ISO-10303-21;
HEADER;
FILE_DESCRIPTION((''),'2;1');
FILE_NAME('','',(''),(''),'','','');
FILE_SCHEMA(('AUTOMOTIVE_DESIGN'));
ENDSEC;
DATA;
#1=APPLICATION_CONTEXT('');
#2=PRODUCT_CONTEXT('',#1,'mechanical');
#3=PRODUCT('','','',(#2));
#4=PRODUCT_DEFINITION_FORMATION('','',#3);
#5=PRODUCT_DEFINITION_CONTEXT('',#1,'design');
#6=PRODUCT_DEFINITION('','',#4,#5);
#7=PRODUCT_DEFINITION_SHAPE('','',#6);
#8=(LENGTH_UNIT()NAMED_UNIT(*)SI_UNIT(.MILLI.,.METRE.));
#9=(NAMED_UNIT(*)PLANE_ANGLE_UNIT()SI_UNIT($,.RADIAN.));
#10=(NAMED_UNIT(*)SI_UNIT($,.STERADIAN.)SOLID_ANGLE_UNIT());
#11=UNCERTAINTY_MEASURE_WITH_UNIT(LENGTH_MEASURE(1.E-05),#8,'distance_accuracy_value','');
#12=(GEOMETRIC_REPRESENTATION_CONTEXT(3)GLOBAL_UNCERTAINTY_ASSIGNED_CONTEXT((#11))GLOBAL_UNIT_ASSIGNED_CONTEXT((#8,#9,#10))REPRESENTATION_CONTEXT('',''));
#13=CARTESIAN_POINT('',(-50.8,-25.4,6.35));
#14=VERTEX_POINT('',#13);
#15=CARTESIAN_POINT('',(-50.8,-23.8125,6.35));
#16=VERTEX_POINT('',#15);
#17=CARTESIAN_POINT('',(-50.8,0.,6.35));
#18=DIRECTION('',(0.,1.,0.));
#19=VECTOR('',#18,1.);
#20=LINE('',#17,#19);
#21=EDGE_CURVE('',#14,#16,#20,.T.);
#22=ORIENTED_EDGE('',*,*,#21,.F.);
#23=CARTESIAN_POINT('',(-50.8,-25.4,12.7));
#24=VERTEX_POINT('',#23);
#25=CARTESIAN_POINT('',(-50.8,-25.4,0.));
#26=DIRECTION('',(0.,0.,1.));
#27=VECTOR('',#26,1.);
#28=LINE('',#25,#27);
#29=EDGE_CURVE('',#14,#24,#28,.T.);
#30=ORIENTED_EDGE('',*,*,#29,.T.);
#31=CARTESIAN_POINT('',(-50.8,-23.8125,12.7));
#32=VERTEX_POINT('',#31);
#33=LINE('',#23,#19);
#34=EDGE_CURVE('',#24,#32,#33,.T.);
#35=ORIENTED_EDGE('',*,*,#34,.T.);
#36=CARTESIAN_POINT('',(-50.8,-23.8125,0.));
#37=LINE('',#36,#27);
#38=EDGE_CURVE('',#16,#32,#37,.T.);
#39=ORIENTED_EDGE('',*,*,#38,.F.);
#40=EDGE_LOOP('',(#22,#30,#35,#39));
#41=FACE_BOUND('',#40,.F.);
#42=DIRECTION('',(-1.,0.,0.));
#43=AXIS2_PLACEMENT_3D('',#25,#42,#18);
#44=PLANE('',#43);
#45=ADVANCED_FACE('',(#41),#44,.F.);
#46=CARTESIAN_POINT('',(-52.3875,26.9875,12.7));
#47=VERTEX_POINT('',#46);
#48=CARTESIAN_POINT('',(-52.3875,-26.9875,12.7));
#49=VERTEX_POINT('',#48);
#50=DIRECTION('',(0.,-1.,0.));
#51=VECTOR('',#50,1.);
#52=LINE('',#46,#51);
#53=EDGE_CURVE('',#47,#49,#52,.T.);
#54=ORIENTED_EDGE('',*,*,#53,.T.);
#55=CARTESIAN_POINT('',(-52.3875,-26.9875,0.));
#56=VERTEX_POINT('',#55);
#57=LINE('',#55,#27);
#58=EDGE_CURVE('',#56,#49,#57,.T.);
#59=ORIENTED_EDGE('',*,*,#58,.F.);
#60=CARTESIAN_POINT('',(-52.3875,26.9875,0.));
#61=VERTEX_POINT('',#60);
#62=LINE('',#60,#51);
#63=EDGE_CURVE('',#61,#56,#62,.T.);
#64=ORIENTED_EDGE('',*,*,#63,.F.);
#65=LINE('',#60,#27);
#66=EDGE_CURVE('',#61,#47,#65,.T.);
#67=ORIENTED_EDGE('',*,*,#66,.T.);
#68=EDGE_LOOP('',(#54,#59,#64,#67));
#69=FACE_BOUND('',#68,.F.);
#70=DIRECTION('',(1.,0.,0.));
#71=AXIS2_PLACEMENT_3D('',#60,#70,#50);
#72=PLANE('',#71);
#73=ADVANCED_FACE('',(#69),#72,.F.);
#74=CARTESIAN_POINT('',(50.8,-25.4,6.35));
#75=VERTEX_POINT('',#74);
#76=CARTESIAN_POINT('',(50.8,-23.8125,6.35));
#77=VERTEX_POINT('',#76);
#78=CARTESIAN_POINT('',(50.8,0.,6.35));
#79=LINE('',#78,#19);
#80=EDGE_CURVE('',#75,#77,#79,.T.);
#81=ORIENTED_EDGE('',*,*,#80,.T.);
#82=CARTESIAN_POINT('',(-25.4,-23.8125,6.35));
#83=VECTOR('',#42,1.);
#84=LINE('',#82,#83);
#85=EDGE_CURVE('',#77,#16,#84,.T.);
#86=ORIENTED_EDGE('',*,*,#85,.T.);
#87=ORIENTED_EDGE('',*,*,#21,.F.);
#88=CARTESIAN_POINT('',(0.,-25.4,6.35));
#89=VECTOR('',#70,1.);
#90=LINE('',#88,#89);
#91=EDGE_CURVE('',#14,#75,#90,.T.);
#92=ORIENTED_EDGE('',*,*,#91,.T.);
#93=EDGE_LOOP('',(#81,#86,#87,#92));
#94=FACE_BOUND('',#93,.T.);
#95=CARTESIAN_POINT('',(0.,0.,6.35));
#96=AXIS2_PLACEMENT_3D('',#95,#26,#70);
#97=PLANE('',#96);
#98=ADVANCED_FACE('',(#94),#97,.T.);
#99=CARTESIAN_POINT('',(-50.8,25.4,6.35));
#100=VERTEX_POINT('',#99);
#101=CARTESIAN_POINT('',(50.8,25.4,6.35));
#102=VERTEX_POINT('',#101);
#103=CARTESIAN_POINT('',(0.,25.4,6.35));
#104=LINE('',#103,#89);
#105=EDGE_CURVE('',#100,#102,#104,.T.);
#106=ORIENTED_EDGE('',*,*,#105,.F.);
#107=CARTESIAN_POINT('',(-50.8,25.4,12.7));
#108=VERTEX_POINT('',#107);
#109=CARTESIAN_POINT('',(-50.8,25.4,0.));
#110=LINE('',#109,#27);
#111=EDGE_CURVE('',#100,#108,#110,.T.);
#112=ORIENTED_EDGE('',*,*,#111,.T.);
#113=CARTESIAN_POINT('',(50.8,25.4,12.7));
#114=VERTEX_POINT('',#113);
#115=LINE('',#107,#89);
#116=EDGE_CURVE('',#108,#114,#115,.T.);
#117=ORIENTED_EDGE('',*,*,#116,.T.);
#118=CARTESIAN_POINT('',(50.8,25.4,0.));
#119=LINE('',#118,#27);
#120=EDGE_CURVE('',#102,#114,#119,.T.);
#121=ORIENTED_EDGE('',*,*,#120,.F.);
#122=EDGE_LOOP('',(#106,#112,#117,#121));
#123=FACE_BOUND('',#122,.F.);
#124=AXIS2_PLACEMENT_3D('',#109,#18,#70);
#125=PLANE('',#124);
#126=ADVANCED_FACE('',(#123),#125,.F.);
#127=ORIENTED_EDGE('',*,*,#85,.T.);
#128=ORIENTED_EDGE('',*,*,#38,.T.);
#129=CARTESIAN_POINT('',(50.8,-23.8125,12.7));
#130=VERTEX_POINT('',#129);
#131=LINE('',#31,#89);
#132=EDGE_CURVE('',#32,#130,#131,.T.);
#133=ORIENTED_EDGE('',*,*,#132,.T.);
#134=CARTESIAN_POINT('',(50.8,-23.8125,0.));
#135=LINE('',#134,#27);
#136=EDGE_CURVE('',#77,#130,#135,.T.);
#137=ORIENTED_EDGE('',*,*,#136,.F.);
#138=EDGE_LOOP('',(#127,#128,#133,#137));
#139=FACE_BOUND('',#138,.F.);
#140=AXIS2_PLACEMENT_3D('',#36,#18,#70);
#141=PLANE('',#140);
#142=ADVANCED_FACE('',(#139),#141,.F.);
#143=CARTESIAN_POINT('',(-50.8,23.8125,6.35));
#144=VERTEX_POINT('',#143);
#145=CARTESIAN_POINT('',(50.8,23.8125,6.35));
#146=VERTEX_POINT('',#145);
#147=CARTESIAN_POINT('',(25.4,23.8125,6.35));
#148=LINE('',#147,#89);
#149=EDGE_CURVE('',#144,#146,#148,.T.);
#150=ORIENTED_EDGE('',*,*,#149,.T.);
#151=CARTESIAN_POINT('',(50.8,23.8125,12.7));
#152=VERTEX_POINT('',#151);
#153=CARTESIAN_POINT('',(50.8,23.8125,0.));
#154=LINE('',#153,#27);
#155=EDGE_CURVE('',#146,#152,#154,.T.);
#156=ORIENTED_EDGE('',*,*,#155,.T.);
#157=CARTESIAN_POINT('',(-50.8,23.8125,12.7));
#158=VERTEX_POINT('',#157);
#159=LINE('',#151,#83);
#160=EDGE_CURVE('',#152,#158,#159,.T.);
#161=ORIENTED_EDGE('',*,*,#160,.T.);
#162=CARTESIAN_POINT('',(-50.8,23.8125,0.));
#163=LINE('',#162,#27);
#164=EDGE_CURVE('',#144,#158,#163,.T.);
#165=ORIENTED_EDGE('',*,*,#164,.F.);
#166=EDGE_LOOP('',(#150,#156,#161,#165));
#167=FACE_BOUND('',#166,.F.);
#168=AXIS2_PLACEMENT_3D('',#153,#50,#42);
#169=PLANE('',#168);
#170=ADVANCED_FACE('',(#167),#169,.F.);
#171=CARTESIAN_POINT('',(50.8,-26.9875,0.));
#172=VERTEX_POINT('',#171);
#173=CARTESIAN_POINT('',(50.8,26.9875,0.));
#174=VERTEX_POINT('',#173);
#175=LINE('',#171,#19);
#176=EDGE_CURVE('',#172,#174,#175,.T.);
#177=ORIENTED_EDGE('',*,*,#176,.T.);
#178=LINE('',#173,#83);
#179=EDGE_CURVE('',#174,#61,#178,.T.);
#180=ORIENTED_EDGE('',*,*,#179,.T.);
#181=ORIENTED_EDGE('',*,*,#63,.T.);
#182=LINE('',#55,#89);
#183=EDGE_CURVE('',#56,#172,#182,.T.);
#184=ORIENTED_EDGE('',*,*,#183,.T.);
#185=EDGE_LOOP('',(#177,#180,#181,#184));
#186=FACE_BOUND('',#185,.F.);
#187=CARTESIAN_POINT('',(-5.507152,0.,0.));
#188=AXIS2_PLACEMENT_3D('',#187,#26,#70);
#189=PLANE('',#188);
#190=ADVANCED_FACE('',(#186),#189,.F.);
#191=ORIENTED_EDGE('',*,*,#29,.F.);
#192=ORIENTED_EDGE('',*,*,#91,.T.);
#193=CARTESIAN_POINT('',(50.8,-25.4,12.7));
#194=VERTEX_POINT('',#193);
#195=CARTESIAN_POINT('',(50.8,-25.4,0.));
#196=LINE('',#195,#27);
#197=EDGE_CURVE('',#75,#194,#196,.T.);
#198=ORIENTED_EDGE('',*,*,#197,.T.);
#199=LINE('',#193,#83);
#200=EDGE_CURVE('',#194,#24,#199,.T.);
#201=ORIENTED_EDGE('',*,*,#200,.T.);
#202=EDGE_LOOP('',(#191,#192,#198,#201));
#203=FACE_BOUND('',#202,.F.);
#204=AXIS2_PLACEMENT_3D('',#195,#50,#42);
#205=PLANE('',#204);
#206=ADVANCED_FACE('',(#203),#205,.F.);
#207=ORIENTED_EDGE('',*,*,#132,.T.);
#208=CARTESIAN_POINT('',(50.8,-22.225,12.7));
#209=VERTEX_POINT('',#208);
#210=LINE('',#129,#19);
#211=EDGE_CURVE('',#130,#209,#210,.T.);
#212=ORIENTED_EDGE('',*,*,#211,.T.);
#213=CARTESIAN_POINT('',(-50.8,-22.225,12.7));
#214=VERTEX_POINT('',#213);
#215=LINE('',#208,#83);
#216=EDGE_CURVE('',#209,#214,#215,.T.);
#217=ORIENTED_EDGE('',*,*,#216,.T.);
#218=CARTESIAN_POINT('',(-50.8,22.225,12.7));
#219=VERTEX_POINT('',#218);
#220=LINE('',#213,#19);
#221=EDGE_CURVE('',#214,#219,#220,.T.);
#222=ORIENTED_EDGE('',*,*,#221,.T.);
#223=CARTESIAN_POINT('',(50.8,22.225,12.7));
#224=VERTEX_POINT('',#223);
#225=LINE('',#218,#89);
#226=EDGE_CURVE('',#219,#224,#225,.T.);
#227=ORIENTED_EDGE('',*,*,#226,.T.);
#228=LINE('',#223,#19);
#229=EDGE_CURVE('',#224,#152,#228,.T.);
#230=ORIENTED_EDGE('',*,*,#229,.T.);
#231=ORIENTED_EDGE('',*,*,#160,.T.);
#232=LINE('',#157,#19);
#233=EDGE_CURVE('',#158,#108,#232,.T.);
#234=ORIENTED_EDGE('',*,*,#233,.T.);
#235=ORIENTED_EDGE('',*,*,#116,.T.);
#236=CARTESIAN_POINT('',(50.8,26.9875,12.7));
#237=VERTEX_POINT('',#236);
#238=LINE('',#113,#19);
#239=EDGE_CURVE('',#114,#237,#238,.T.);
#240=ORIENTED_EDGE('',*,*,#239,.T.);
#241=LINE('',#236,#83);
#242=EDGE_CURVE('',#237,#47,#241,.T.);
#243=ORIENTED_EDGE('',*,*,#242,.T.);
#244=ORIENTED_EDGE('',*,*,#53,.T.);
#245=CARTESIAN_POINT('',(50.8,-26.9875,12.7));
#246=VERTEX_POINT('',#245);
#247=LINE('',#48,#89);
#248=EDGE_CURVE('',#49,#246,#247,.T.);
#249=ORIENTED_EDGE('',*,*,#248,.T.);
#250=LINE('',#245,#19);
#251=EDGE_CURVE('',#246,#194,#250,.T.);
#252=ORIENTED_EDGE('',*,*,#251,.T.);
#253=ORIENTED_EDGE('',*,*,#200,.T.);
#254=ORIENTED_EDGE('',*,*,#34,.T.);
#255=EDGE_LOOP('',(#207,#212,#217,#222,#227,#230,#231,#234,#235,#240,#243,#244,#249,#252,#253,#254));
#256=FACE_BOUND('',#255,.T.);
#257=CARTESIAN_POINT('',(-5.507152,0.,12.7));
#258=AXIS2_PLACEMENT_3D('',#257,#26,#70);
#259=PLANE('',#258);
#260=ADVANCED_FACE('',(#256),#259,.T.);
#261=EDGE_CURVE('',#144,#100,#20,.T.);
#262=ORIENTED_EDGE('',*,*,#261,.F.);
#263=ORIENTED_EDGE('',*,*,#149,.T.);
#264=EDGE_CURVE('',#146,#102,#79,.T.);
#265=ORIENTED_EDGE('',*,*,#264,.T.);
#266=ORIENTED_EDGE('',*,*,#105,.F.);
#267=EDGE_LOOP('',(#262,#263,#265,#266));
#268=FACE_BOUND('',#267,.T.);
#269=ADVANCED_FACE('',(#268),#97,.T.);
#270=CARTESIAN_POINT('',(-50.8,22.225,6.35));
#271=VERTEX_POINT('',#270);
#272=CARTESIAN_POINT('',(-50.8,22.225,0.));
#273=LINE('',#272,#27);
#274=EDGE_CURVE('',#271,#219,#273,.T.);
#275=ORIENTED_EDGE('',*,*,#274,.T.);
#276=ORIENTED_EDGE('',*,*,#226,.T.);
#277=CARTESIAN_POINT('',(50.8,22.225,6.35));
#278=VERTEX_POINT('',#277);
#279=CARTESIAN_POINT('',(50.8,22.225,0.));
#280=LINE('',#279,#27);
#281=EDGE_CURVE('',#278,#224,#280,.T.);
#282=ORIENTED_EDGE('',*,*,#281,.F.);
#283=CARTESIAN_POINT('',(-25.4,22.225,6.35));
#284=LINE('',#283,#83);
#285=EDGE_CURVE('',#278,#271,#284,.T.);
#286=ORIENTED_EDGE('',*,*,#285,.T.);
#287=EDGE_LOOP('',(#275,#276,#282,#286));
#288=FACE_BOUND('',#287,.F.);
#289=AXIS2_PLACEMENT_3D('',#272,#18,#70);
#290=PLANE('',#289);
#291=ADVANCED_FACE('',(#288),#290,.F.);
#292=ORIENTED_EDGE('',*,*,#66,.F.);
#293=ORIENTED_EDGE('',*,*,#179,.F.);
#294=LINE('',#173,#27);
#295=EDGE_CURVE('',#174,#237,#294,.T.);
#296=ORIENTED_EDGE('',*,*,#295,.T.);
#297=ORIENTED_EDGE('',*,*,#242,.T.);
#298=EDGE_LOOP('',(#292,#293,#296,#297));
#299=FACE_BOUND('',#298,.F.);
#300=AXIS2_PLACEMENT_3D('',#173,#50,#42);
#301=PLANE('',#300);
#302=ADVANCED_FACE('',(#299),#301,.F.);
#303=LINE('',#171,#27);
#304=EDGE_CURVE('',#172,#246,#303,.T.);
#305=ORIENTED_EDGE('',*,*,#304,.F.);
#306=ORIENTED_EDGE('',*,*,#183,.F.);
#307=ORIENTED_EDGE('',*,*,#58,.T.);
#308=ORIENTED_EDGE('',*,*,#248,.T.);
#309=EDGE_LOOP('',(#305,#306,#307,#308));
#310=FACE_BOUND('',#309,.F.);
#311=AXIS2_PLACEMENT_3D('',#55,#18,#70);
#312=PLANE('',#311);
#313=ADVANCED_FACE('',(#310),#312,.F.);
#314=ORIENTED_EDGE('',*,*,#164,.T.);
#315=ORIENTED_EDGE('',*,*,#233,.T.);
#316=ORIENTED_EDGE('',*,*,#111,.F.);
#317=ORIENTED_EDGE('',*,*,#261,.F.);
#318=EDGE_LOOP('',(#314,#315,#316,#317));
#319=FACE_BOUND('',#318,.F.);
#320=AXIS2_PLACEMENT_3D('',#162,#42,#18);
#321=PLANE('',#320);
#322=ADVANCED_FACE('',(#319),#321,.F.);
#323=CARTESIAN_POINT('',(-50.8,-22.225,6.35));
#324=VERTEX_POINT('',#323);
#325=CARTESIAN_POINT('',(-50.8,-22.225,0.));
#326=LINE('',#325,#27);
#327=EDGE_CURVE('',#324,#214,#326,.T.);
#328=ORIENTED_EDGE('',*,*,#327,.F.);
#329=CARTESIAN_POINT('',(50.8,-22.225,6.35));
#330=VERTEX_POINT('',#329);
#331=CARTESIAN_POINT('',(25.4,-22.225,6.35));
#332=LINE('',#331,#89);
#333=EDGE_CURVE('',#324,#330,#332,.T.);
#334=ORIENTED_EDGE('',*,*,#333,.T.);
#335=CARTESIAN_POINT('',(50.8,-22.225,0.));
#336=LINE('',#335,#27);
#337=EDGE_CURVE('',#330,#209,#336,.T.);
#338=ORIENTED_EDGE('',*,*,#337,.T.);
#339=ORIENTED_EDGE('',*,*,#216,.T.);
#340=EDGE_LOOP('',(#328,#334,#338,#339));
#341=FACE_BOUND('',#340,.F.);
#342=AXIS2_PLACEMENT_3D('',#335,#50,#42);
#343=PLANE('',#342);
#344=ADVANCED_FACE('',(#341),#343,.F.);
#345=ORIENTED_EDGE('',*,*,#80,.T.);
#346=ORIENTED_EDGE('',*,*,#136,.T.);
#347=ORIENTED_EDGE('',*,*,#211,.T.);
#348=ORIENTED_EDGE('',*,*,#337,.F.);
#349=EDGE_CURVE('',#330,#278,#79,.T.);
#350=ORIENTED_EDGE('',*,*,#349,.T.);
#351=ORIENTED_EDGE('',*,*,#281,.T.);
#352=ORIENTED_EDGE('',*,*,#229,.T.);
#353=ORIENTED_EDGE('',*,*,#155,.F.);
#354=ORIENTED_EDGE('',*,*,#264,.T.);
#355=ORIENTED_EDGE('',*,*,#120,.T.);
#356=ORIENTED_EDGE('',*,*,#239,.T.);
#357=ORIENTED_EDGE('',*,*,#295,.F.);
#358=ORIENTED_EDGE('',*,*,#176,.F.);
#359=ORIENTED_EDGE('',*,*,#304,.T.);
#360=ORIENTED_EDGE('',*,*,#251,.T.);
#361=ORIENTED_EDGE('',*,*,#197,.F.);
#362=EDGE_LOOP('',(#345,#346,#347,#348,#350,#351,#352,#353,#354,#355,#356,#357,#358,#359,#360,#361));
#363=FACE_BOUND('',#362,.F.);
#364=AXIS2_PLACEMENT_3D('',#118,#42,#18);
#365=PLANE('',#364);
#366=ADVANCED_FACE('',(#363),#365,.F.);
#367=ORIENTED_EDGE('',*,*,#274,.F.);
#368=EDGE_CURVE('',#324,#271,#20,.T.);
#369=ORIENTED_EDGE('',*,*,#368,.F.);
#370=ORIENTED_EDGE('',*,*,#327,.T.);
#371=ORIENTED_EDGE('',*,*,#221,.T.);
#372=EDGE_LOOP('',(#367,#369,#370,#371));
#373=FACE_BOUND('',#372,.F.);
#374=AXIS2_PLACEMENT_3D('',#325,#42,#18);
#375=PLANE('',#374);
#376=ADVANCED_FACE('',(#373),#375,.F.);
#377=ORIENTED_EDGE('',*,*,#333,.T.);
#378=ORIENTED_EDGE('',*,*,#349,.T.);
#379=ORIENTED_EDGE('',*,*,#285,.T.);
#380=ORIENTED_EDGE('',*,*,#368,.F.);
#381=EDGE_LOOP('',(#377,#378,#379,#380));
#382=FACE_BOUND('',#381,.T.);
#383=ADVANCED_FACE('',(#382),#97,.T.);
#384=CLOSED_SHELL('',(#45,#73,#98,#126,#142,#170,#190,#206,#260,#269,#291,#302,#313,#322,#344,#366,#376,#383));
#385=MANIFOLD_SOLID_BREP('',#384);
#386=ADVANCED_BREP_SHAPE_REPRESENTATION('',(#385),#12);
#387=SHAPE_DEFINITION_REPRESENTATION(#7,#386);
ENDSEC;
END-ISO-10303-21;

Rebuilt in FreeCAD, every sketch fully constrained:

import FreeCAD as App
import Part
import Sketcher
from FreeCAD import Vector
Q = App.Units.Quantity

doc = App.newDocument("Part")
body = doc.addObject("PartDesign::Body", "Body")

sketch1 = body.newObject("Sketcher::SketchObject", "Sketch")
sketch1.AttachmentSupport = (doc.getObject("XY_Plane"), [""])
sketch1.MapMode = "FlatFace"
sketch1.addGeometry([
    Part.LineSegment(Vector(-51, 25, 0), Vector(-51, -25, 0)),
    Part.LineSegment(Vector(-51, -25, 0), Vector(51, -25, 0)),
    Part.LineSegment(Vector(51, -25, 0), Vector(51, 25, 0)),
    Part.LineSegment(Vector(51, 25, 0), Vector(-51, 25, 0)),
], False)
sketch1.addConstraint([
    Sketcher.Constraint("Coincident", 0, 2, 1, 1),
    Sketcher.Constraint("Coincident", 1, 2, 2, 1),
    Sketcher.Constraint("Coincident", 2, 2, 3, 1),
    Sketcher.Constraint("Coincident", 3, 2, 0, 1),
    Sketcher.Constraint("Vertical", 0),
    Sketcher.Constraint("Horizontal", 1),
    Sketcher.Constraint("Vertical", 2),
    Sketcher.Constraint("Horizontal", 3),
    Sketcher.Constraint("Symmetric", 0, 2, 2, 2, -1, 1),
    Sketcher.Constraint("DistanceX", 1, 1, 1, 2, Q("4 in")),
    Sketcher.Constraint("DistanceY", 0, 2, 0, 1, Q("2 in")),
])
pad1 = body.newObject("PartDesign::Pad", "Pad")
pad1.Profile = sketch1
pad1.Length = Q("0.25 in")

sketch2 = body.newObject("Sketcher::SketchObject", "Sketch001")
sketch2.AttachmentSupport = (doc.getObject("XY_Plane"), [""])
sketch2.MapMode = "FlatFace"
sketch2.addGeometry([
    Part.LineSegment(Vector(50.8, 25.4, 0), Vector(50.8, 27, 0)),
    Part.LineSegment(Vector(50.8, 27, 0), Vector(-52.4, 27, 0)),
    Part.LineSegment(Vector(-52.4, 27, 0), Vector(-52.4, -27, 0)),
    Part.LineSegment(Vector(-52.4, -27, 0), Vector(50.8, -27, 0)),
    Part.LineSegment(Vector(50.8, -27, 0), Vector(50.8, -25.4, 0)),
    Part.LineSegment(Vector(50.8, -25.4, 0), Vector(-50.8, -25.4, 0)),
    Part.LineSegment(Vector(-50.8, -25.4, 0), Vector(-50.8, -23.8, 0)),
    Part.LineSegment(Vector(-50.8, -23.8, 0), Vector(50.8, -23.8, 0)),
    Part.LineSegment(Vector(50.8, -23.8, 0), Vector(50.8, -22.2, 0)),
    Part.LineSegment(Vector(50.8, -22.2, 0), Vector(-50.8, -22.2, 0)),
    Part.LineSegment(Vector(-50.8, -22.2, 0), Vector(-50.8, 22.2, 0)),
    Part.LineSegment(Vector(-50.8, 22.2, 0), Vector(50.8, 22.2, 0)),
    Part.LineSegment(Vector(50.8, 22.2, 0), Vector(50.8, 23.8, 0)),
    Part.LineSegment(Vector(50.8, 23.8, 0), Vector(-50.8, 23.8, 0)),
    Part.LineSegment(Vector(-50.8, 23.8, 0), Vector(-50.8, 25.4, 0)),
    Part.LineSegment(Vector(-50.8, 25.4, 0), Vector(50.8, 25.4, 0)),
], False)
sketch2.addConstraint([
    Sketcher.Constraint("Coincident", 0, 2, 1, 1),
    Sketcher.Constraint("Coincident", 1, 2, 2, 1),
    Sketcher.Constraint("Coincident", 2, 2, 3, 1),
    Sketcher.Constraint("Coincident", 3, 2, 4, 1),
    Sketcher.Constraint("Coincident", 4, 2, 5, 1),
    Sketcher.Constraint("Coincident", 5, 2, 6, 1),
    Sketcher.Constraint("Coincident", 6, 2, 7, 1),
    Sketcher.Constraint("Coincident", 7, 2, 8, 1),
    Sketcher.Constraint("Coincident", 8, 2, 9, 1),
    Sketcher.Constraint("Coincident", 9, 2, 10, 1),
    Sketcher.Constraint("Coincident", 10, 2, 11, 1),
    Sketcher.Constraint("Coincident", 11, 2, 12, 1),
    Sketcher.Constraint("Coincident", 12, 2, 13, 1),
    Sketcher.Constraint("Coincident", 13, 2, 14, 1),
    Sketcher.Constraint("Coincident", 14, 2, 15, 1),
    Sketcher.Constraint("Coincident", 15, 2, 0, 1),
    Sketcher.Constraint("Vertical", 0),
    Sketcher.Constraint("Horizontal", 1),
    Sketcher.Constraint("Vertical", 2),
    Sketcher.Constraint("Horizontal", 3),
    Sketcher.Constraint("Vertical", 4),
    Sketcher.Constraint("Horizontal", 5),
    Sketcher.Constraint("Vertical", 6),
    Sketcher.Constraint("Horizontal", 7),
    Sketcher.Constraint("Vertical", 8),
    Sketcher.Constraint("Horizontal", 9),
    Sketcher.Constraint("Vertical", 10),
    Sketcher.Constraint("Horizontal", 11),
    Sketcher.Constraint("Vertical", 12),
    Sketcher.Constraint("Horizontal", 13),
    Sketcher.Constraint("Vertical", 14),
    Sketcher.Constraint("Horizontal", 15),
    Sketcher.Constraint("Symmetric", 8, 2, 10, 2, -1, 1),
    Sketcher.Constraint("Symmetric", 6, 2, 12, 2, -1, 1),
    Sketcher.Constraint("Symmetric", 4, 2, 14, 2, -1, 1),
    Sketcher.Constraint("Symmetric", 0, 2, 3, 2, -1),
    Sketcher.Constraint("Vertical", 4, 2, 7, 2),
    Sketcher.Constraint("Vertical", 6, 2, 9, 2),
    Sketcher.Constraint("Equal", 4, 6),
    Sketcher.Constraint("Equal", 6, 8),
    Sketcher.Constraint("DistanceX", 5, 2, 5, 1, Q("4 in")),
    Sketcher.Constraint("DistanceY", 4, 2, -1, 1, Q("1 in")),
    Sketcher.Constraint("DistanceY", 10, 1, 10, 2, Q("1.75 in")),
    Sketcher.Constraint("DistanceX", 1, 2, 1, 1, Q("4.0625 in")),
])
pad2 = body.newObject("PartDesign::Pad", "Pad001")
pad2.Profile = sketch2
pad2.Length = Q("0.5 in")

doc.recompute()
